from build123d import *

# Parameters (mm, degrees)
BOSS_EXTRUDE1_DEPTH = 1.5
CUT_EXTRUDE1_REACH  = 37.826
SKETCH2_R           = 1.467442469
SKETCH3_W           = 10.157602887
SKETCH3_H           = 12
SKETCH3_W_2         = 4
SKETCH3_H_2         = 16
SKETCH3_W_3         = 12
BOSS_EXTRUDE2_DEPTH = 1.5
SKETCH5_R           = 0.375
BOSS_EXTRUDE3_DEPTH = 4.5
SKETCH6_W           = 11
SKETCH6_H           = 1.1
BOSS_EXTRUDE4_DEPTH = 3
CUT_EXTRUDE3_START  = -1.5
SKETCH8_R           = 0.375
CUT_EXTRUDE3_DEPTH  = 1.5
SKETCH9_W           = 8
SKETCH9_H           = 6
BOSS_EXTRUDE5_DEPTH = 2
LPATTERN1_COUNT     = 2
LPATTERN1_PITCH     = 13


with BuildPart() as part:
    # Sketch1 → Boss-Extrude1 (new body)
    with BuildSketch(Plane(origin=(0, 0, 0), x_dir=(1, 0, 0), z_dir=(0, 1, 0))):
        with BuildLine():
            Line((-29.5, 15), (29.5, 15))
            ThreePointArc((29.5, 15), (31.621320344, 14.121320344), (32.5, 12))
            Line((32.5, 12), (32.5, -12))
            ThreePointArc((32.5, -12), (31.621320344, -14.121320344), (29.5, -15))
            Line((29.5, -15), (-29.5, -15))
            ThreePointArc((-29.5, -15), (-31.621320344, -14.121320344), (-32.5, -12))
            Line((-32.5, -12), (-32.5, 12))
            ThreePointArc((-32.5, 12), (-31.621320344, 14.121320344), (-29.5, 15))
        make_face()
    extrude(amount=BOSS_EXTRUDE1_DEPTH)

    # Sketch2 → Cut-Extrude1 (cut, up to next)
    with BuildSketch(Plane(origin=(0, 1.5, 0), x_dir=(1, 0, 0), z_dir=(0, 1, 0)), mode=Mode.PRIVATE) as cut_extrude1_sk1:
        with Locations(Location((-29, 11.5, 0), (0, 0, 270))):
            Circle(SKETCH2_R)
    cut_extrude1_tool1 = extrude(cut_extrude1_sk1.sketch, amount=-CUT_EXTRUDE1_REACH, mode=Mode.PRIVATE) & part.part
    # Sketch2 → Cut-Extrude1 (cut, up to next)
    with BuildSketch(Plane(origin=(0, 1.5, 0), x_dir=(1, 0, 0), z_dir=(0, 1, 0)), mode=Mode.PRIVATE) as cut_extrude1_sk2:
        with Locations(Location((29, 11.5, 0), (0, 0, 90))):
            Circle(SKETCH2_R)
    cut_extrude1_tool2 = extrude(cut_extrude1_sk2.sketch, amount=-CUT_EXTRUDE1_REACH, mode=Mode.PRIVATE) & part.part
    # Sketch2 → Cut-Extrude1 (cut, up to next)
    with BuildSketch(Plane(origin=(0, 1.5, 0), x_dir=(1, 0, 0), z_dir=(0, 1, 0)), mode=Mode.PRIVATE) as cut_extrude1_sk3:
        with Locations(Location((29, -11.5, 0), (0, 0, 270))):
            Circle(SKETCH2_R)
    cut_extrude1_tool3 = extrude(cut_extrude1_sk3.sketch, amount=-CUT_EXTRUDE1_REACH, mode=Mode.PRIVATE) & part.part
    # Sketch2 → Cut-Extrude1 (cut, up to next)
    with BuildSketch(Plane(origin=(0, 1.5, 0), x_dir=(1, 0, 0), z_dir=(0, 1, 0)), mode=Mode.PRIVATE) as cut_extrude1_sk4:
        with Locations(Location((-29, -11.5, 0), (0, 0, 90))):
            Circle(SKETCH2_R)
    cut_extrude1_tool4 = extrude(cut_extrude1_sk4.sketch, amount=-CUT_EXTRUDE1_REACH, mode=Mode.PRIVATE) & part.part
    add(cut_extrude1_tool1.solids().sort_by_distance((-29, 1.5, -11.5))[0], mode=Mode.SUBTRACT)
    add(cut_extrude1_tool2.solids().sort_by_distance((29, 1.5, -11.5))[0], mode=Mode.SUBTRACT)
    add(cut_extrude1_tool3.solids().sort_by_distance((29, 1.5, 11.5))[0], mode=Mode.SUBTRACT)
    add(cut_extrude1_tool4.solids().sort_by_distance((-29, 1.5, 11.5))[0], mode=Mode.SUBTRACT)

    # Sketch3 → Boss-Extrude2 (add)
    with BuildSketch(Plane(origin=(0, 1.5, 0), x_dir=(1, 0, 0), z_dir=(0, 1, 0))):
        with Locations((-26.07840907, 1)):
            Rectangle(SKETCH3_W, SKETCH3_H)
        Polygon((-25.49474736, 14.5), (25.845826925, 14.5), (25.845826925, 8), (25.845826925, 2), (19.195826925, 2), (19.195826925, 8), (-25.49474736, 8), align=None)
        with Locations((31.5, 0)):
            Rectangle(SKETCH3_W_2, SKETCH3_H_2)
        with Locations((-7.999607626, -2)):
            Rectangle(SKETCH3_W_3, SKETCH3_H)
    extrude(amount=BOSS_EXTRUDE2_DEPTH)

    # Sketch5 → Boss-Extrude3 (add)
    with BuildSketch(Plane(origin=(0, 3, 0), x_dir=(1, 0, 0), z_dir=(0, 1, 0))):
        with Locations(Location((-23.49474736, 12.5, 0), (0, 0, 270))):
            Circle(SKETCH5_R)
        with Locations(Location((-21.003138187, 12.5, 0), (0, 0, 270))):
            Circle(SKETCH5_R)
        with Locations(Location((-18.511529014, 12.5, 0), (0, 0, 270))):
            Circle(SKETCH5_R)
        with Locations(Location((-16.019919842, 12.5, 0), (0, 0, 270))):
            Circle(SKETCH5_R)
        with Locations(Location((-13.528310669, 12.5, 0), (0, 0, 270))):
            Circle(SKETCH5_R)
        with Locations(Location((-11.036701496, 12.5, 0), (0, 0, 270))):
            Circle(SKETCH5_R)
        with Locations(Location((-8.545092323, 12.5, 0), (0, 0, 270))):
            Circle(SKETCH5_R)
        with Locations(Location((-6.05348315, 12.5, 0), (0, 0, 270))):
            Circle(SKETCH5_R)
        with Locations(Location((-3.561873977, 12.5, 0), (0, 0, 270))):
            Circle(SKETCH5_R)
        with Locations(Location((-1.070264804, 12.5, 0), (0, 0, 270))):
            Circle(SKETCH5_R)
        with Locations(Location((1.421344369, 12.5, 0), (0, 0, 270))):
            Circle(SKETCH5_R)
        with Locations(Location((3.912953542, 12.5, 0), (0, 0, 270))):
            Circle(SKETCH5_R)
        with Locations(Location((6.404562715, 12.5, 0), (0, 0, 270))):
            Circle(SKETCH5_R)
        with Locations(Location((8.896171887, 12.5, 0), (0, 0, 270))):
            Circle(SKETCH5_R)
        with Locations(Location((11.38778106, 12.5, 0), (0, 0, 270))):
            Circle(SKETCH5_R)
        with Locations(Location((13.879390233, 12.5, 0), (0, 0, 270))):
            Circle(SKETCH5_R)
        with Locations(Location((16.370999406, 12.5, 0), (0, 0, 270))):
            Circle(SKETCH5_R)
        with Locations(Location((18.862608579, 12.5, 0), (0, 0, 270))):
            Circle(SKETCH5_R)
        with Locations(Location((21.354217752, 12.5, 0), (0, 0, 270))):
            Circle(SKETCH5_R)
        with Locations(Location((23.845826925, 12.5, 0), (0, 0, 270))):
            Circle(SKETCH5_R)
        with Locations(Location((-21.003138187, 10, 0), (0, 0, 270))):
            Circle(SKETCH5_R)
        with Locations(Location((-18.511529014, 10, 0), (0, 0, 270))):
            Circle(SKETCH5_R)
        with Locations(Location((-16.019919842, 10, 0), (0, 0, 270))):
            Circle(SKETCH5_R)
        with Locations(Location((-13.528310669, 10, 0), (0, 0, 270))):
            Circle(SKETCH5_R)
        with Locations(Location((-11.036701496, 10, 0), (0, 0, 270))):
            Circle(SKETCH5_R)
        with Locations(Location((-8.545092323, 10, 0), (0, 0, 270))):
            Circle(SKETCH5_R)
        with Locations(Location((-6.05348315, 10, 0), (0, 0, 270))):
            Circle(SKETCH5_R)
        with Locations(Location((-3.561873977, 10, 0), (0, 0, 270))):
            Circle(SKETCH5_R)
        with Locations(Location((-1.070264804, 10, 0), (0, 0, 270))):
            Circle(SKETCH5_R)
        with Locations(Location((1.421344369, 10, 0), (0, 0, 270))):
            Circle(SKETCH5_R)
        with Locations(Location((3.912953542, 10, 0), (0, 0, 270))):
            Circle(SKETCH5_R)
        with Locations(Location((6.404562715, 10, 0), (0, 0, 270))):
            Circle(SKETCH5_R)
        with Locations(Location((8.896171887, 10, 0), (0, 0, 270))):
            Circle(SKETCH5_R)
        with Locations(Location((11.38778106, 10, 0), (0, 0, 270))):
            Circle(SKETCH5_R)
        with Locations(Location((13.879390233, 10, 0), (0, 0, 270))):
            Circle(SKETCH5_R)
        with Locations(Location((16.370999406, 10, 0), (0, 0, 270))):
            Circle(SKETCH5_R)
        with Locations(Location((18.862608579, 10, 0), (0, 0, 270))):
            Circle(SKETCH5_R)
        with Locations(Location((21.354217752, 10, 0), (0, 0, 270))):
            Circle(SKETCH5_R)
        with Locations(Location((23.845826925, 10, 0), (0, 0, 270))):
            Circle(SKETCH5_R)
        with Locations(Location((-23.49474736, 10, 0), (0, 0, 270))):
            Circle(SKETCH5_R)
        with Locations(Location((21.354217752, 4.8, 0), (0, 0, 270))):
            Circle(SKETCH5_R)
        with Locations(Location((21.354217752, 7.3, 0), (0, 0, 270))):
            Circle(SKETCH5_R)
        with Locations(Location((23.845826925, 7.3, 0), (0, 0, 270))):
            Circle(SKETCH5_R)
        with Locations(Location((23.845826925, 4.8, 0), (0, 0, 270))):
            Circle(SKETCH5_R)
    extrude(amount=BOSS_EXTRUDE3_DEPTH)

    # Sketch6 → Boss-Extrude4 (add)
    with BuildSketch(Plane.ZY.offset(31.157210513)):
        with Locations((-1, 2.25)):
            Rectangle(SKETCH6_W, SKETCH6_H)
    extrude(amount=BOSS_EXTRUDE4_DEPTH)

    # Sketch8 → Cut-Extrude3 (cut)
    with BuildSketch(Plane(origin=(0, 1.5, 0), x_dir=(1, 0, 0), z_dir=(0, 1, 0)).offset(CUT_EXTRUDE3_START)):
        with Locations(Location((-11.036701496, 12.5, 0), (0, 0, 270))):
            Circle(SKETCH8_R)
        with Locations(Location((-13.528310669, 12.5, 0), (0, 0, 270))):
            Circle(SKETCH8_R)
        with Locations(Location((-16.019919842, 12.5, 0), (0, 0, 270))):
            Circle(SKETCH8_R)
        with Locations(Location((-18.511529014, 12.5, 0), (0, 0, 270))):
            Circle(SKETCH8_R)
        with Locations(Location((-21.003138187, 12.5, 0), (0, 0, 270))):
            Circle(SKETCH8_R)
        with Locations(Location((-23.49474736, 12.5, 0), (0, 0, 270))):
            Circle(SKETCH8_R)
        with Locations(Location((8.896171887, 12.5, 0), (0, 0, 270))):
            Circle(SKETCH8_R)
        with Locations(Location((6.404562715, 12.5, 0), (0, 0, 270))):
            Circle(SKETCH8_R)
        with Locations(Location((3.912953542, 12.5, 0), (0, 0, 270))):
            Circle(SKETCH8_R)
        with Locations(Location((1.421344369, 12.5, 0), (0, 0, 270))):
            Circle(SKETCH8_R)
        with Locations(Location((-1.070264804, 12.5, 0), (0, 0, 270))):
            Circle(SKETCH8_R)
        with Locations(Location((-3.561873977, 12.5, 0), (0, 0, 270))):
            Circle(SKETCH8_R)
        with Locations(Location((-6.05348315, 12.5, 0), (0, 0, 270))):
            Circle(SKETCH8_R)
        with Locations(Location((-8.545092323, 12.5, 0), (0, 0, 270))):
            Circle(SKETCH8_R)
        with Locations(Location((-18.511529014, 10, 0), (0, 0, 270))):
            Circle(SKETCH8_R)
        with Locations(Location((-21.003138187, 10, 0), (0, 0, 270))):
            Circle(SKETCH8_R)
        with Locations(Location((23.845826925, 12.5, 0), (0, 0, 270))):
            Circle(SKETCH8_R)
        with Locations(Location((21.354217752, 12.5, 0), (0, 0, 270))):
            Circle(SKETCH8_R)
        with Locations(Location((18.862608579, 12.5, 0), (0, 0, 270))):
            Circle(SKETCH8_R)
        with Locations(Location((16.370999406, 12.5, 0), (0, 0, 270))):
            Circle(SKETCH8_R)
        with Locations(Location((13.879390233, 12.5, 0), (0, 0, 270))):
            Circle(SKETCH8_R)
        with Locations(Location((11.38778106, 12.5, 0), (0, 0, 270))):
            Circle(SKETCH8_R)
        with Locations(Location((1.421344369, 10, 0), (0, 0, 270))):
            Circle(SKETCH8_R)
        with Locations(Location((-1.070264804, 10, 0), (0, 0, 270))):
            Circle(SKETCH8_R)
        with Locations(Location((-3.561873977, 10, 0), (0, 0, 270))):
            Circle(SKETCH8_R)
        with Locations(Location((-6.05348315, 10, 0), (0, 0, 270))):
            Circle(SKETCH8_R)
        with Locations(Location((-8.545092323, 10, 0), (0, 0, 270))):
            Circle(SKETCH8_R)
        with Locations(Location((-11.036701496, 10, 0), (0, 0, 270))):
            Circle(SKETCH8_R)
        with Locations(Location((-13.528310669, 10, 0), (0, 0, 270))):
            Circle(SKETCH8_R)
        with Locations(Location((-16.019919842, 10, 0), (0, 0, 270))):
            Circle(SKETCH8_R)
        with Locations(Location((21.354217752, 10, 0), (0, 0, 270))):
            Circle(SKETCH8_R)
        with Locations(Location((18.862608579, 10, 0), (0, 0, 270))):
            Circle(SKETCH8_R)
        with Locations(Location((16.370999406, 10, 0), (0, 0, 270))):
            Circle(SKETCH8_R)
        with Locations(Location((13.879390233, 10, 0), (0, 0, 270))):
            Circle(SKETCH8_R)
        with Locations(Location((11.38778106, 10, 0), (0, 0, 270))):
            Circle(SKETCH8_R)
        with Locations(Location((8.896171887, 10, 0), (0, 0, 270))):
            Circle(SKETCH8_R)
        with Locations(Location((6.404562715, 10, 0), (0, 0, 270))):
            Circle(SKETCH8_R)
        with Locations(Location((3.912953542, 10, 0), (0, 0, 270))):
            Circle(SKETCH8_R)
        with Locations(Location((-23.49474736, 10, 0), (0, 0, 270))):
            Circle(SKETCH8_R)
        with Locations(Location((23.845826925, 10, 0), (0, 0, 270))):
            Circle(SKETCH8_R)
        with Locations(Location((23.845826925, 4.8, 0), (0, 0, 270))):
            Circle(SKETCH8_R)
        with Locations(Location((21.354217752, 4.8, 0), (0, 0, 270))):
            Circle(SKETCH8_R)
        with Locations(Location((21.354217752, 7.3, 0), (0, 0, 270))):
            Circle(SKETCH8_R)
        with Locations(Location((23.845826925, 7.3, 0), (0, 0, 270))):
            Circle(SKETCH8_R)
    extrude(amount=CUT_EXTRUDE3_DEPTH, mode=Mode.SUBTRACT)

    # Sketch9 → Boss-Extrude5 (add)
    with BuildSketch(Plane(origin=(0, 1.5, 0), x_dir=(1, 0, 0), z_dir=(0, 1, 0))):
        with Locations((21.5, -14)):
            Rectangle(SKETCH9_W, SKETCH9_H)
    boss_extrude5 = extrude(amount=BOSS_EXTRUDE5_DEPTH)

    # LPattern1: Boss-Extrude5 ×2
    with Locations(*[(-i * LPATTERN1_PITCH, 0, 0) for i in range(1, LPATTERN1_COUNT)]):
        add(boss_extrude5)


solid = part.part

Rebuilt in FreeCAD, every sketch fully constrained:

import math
import FreeCAD as App
import Part
import Sketcher


def add_polygon(sketch, points):
    """Adds a closed chain of lines whose ends are joined by coincident constraints."""
    first, n = sketch.GeometryCount, len(points)
    for a, b in zip(points, points[1:] + points[:1]):
        sketch.addGeometry(Part.LineSegment(App.Vector(*a, 0), App.Vector(*b, 0)), False)
    for i in range(n):
        sketch.addConstraint(Sketcher.Constraint("Coincident", first + i, 2, first + (i + 1) % n, 1))

doc = App.newDocument("Part")
body = doc.addObject("PartDesign::Body", "Body")

sketch1 = body.newObject("Sketcher::SketchObject", "Sketch")
sketch1.AttachmentSupport = (doc.getObject("XZ_Plane"), [""])
sketch1.MapMode = "FlatFace"
sketch1.addGeometry([
    Part.LineSegment(App.Vector(29.5, -15, 0), App.Vector(-29.5, -15, 0)),
    Part.ArcOfCircle(Part.Circle(App.Vector(-29.5, -12, 0), App.Vector(0, 0, 1), 3), math.radians(180), math.radians(270)),
    Part.LineSegment(App.Vector(-32.5, -12, 0), App.Vector(-32.5, 12, 0)),
    Part.ArcOfCircle(Part.Circle(App.Vector(-29.5, 12, 0), App.Vector(0, 0, 1), 3), math.radians(90), math.radians(180)),
    Part.LineSegment(App.Vector(-29.5, 15, 0), App.Vector(29.5, 15, 0)),
    Part.ArcOfCircle(Part.Circle(App.Vector(29.5, 12, 0), App.Vector(0, 0, 1), 3), math.radians(0), math.radians(90)),
    Part.LineSegment(App.Vector(32.5, 12, 0), App.Vector(32.5, -12, 0)),
    Part.ArcOfCircle(Part.Circle(App.Vector(29.5, -12, 0), App.Vector(0, 0, 1), 3), math.radians(-90), math.radians(0)),
], False)
sketch1.addConstraint([
    Sketcher.Constraint("Tangent", 0, 2, 1, 2),
    Sketcher.Constraint("Tangent", 1, 1, 2, 1),
    Sketcher.Constraint("Tangent", 2, 2, 3, 2),
    Sketcher.Constraint("Tangent", 3, 1, 4, 1),
    Sketcher.Constraint("Tangent", 4, 2, 5, 2),
    Sketcher.Constraint("Tangent", 5, 1, 6, 1),
    Sketcher.Constraint("Tangent", 6, 2, 7, 2),
    Sketcher.Constraint("Tangent", 7, 1, 0, 1),
    Sketcher.Constraint("Horizontal", 0),
    Sketcher.Constraint("Vertical", 2),
    Sketcher.Constraint("Horizontal", 4),
    Sketcher.Constraint("Vertical", 6),
    Sketcher.Constraint("Equal", 1, 3),
    Sketcher.Constraint("Equal", 3, 5),
    Sketcher.Constraint("Equal", 5, 7),
    Sketcher.Constraint("Symmetric", 1, 3, 5, 3, -1, 1),
    Sketcher.Constraint("Radius", 1, 3.0),
    Sketcher.Constraint("DistanceX", 0, 2, 0, 1, 59.0),
    Sketcher.Constraint("DistanceY", 2, 1, 2, 2, 24.0),
])
pad1 = body.newObject("PartDesign::Pad", "Pad")
pad1.Profile = sketch1
pad1.Length = 1.5
pad1.Reversed = True

sketch2 = body.newObject("Sketcher::SketchObject", "Sketch001")
sketch2.AttachmentSupport = (doc.getObject("XZ_Plane"), [""])
sketch2.MapMode = "FlatFace"
sketch2.AttachmentOffset = App.Placement(App.Vector(0, 0, -1.5), App.Rotation())
sketch2.addGeometry(Part.Circle(App.Vector(-29, -11.5, 0), App.Vector(0, 0, 1), 1.467442), False)
sketch2.addConstraint([
    Sketcher.Constraint("DistanceX", 0, 3, -1, 1, 29.0),
    Sketcher.Constraint("DistanceY", 0, 3, -1, 1, 11.5),
    Sketcher.Constraint("Diameter", 0, 2.934885),
])
pocket1 = body.newObject("PartDesign::Pocket", "Pocket")
pocket1.Profile = sketch2
pocket1.Type = "UpToFirst"
pocket1.Reversed = True

sketch3 = body.newObject("Sketcher::SketchObject", "Sketch002")
sketch3.AttachmentSupport = (doc.getObject("XZ_Plane"), [""])
sketch3.MapMode = "FlatFace"
sketch3.AttachmentOffset = App.Placement(App.Vector(0, 0, -1.5), App.Rotation())
sketch3.addGeometry(Part.Circle(App.Vector(29, -11.5, 0), App.Vector(0, 0, 1), 1.467442), False)
sketch3.addConstraint([
    Sketcher.Constraint("DistanceX", -1, 1, 0, 3, 29.0),
    Sketcher.Constraint("DistanceY", 0, 3, -1, 1, 11.5),
    Sketcher.Constraint("Diameter", 0, 2.934885),
])
pocket2 = body.newObject("PartDesign::Pocket", "Pocket001")
pocket2.Profile = sketch3
pocket2.Type = "UpToFirst"
pocket2.Reversed = True

sketch4 = body.newObject("Sketcher::SketchObject", "Sketch003")
sketch4.AttachmentSupport = (doc.getObject("XZ_Plane"), [""])
sketch4.MapMode = "FlatFace"
sketch4.AttachmentOffset = App.Placement(App.Vector(0, 0, -1.5), App.Rotation())
sketch4.addGeometry(Part.Circle(App.Vector(29, 11.5, 0), App.Vector(0, 0, 1), 1.467442), False)
sketch4.addConstraint([
    Sketcher.Constraint("DistanceX", -1, 1, 0, 3, 29.0),
    Sketcher.Constraint("DistanceY", -1, 1, 0, 3, 11.5),
    Sketcher.Constraint("Diameter", 0, 2.934885),
])
pocket3 = body.newObject("PartDesign::Pocket", "Pocket002")
pocket3.Profile = sketch4
pocket3.Type = "UpToFirst"
pocket3.Reversed = True

sketch5 = body.newObject("Sketcher::SketchObject", "Sketch004")
sketch5.AttachmentSupport = (doc.getObject("XZ_Plane"), [""])
sketch5.MapMode = "FlatFace"
sketch5.AttachmentOffset = App.Placement(App.Vector(0, 0, -1.5), App.Rotation())
sketch5.addGeometry(Part.Circle(App.Vector(-29, 11.5, 0), App.Vector(0, 0, 1), 1.467442), False)
sketch5.addConstraint([
    Sketcher.Constraint("DistanceX", 0, 3, -1, 1, 29.0),
    Sketcher.Constraint("DistanceY", -1, 1, 0, 3, 11.5),
    Sketcher.Constraint("Diameter", 0, 2.934885),
])
pocket4 = body.newObject("PartDesign::Pocket", "Pocket003")
pocket4.Profile = sketch5
pocket4.Type = "UpToFirst"
pocket4.Reversed = True

sketch6 = body.newObject("Sketcher::SketchObject", "Sketch005")
sketch6.AttachmentSupport = (doc.getObject("XZ_Plane"), [""])
sketch6.MapMode = "FlatFace"
sketch6.AttachmentOffset = App.Placement(App.Vector(0, 0, -1.5), App.Rotation())
add_polygon(sketch6, [(-31.157211, -7), (-31.157211, 5), (-20.999608, 5), (-20.999608, -7)])
add_polygon(sketch6, [(25.845827, -14.5), (-25.494747, -14.5), (-25.494747, -8), (19.195827, -8), (19.195827, -2), (25.845827, -2)])
add_polygon(sketch6, [(29.5, -8), (29.5, 8), (33.5, 8), (33.5, -8)])
add_polygon(sketch6, [(-13.999608, -4), (-13.999608, 8), (-1.999608, 8), (-1.999608, -4)])
sketch6.addConstraint([
    Sketcher.Constraint("Vertical", 0),
    Sketcher.Constraint("Horizontal", 1),
    Sketcher.Constraint("Vertical", 2),
    Sketcher.Constraint("Horizontal", 3),
    Sketcher.Constraint("Horizontal", 4),
    Sketcher.Constraint("Vertical", 5),
    Sketcher.Constraint("Horizontal", 6),
    Sketcher.Constraint("Vertical", 7),
    Sketcher.Constraint("Horizontal", 8),
    Sketcher.Constraint("Vertical", 9),
    Sketcher.Constraint("Vertical", 10),
    Sketcher.Constraint("Horizontal", 11),
    Sketcher.Constraint("Vertical", 12),
    Sketcher.Constraint("Horizontal", 13),
    Sketcher.Constraint("Vertical", 14),
    Sketcher.Constraint("Horizontal", 15),
    Sketcher.Constraint("Vertical", 16),
    Sketcher.Constraint("Horizontal", 17),
    Sketcher.Constraint("Horizontal", 6, 2, 12, 2),
    Sketcher.Constraint("Horizontal", 11, 2, 14, 2),
    Sketcher.Constraint("Equal", 17, 0),
    Sketcher.Constraint("Equal", 2, 14),
    Sketcher.Constraint("DistanceX", 11, 1, 11, 2, 4.0),
    Sketcher.Constraint("DistanceX", 15, 1, 15, 2, 12.0),
    Sketcher.Constraint("DistanceY", 7, 1, 7, 2, 6.0),
    Sketcher.Constraint("DistanceY", 10, 1, 10, 2, 16.0),
    Sketcher.Constraint("DistanceY", 5, 1, 5, 2, 6.5),
    Sketcher.Constraint("DistanceY", -1, 1, 0, 2, 5.0),
    Sketcher.Constraint("DistanceY", 5, 2, -1, 1, 8.0),
    Sketcher.Constraint("DistanceX", 1, 2, 14, 2, 7.0),
    Sketcher.Constraint("DistanceX", 8, 1, 8, 2, 6.65),
    Sketcher.Constraint("DistanceX", -1, 1, 10, 2, 29.5),
    Sketcher.Constraint("DistanceX", 1, 1, 1, 2, 10.157603),
    Sketcher.Constraint("DistanceX", 4, 2, 4, 1, 51.340574),
    Sketcher.Constraint("DistanceX", 0, 2, -1, 1, 31.157211),
    Sketcher.Constraint("DistanceX", 4, 2, 2, 2, 4.49514),
])
pad2 = body.newObject("PartDesign::Pad", "Pad001")
pad2.Profile = sketch6
pad2.Length = 1.5
pad2.Reversed = True

sketch7 = body.newObject("Sketcher::SketchObject", "Sketch006")
sketch7.AttachmentSupport = (doc.getObject("XZ_Plane"), [""])
sketch7.MapMode = "FlatFace"
sketch7.AttachmentOffset = App.Placement(App.Vector(0, 0, -3), App.Rotation())
sketch7.addGeometry([
    Part.Circle(App.Vector(-23.494747, -12.5, 0), App.Vector(0, 0, 1), 0.375),
    Part.Circle(App.Vector(-21.003138, -12.5, 0), App.Vector(0, 0, 1), 0.375),
    Part.Circle(App.Vector(-18.511529, -12.5, 0), App.Vector(0, 0, 1), 0.375),
    Part.Circle(App.Vector(-16.01992, -12.5, 0), App.Vector(0, 0, 1), 0.375),
    Part.Circle(App.Vector(-13.528311, -12.5, 0), App.Vector(0, 0, 1), 0.375),
    Part.Circle(App.Vector(-11.036701, -12.5, 0), App.Vector(0, 0, 1), 0.375),
    Part.Circle(App.Vector(-8.545092, -12.5, 0), App.Vector(0, 0, 1), 0.375),
    Part.Circle(App.Vector(-6.053483, -12.5, 0), App.Vector(0, 0, 1), 0.375),
    Part.Circle(App.Vector(-3.561874, -12.5, 0), App.Vector(0, 0, 1), 0.375),
    Part.Circle(App.Vector(-1.070265, -12.5, 0), App.Vector(0, 0, 1), 0.375),
    Part.Circle(App.Vector(1.421344, -12.5, 0), App.Vector(0, 0, 1), 0.375),
    Part.Circle(App.Vector(3.912954, -12.5, 0), App.Vector(0, 0, 1), 0.375),
    Part.Circle(App.Vector(6.404563, -12.5, 0), App.Vector(0, 0, 1), 0.375),
    Part.Circle(App.Vector(8.896172, -12.5, 0), App.Vector(0, 0, 1), 0.375),
    Part.Circle(App.Vector(11.387781, -12.5, 0), App.Vector(0, 0, 1), 0.375),
    Part.Circle(App.Vector(13.87939, -12.5, 0), App.Vector(0, 0, 1), 0.375),
    Part.Circle(App.Vector(16.370999, -12.5, 0), App.Vector(0, 0, 1), 0.375),
    Part.Circle(App.Vector(18.862609, -12.5, 0), App.Vector(0, 0, 1), 0.375),
    Part.Circle(App.Vector(21.354218, -12.5, 0), App.Vector(0, 0, 1), 0.375),
    Part.Circle(App.Vector(23.845827, -12.5, 0), App.Vector(0, 0, 1), 0.375),
    Part.Circle(App.Vector(-21.003138, -10, 0), App.Vector(0, 0, 1), 0.375),
    Part.Circle(App.Vector(-18.511529, -10, 0), App.Vector(0, 0, 1), 0.375),
    Part.Circle(App.Vector(-16.01992, -10, 0), App.Vector(0, 0, 1), 0.375),
    Part.Circle(App.Vector(-13.528311, -10, 0), App.Vector(0, 0, 1), 0.375),
    Part.Circle(App.Vector(-11.036701, -10, 0), App.Vector(0, 0, 1), 0.375),
    Part.Circle(App.Vector(-8.545092, -10, 0), App.Vector(0, 0, 1), 0.375),
    Part.Circle(App.Vector(-6.053483, -10, 0), App.Vector(0, 0, 1), 0.375),
    Part.Circle(App.Vector(-3.561874, -10, 0), App.Vector(0, 0, 1), 0.375),
    Part.Circle(App.Vector(-1.070265, -10, 0), App.Vector(0, 0, 1), 0.375),
    Part.Circle(App.Vector(1.421344, -10, 0), App.Vector(0, 0, 1), 0.375),
    Part.Circle(App.Vector(3.912954, -10, 0), App.Vector(0, 0, 1), 0.375),
    Part.Circle(App.Vector(6.404563, -10, 0), App.Vector(0, 0, 1), 0.375),
    Part.Circle(App.Vector(8.896172, -10, 0), App.Vector(0, 0, 1), 0.375),
    Part.Circle(App.Vector(11.387781, -10, 0), App.Vector(0, 0, 1), 0.375),
    Part.Circle(App.Vector(13.87939, -10, 0), App.Vector(0, 0, 1), 0.375),
    Part.Circle(App.Vector(16.370999, -10, 0), App.Vector(0, 0, 1), 0.375),
    Part.Circle(App.Vector(18.862609, -10, 0), App.Vector(0, 0, 1), 0.375),
    Part.Circle(App.Vector(21.354218, -10, 0), App.Vector(0, 0, 1), 0.375),
    Part.Circle(App.Vector(23.845827, -10, 0), App.Vector(0, 0, 1), 0.375),
    Part.Circle(App.Vector(-23.494747, -10, 0), App.Vector(0, 0, 1), 0.375),
    Part.Circle(App.Vector(21.354218, -4.8, 0), App.Vector(0, 0, 1), 0.375),
    Part.Circle(App.Vector(21.354218, -7.3, 0), App.Vector(0, 0, 1), 0.375),
    Part.Circle(App.Vector(23.845827, -7.3, 0), App.Vector(0, 0, 1), 0.375),
    Part.Circle(App.Vector(23.845827, -4.8, 0), App.Vector(0, 0, 1), 0.375),
], False)
sketch7.addConstraint([
    Sketcher.Constraint("Equal", 0, 1),
    Sketcher.Constraint("Equal", 1, 2),
    Sketcher.Constraint("Equal", 2, 3),
    Sketcher.Constraint("Equal", 3, 4),
    Sketcher.Constraint("Equal", 4, 5),
    Sketcher.Constraint("Equal", 5, 6),
    Sketcher.Constraint("Equal", 6, 7),
    Sketcher.Constraint("Equal", 7, 8),
    Sketcher.Constraint("Equal", 8, 9),
    Sketcher.Constraint("Equal", 9, 10),
    Sketcher.Constraint("Equal", 10, 11),
    Sketcher.Constraint("Equal", 11, 12),
    Sketcher.Constraint("Equal", 12, 13),
    Sketcher.Constraint("Equal", 13, 14),
    Sketcher.Constraint("Equal", 14, 15),
    Sketcher.Constraint("Equal", 15, 16),
    Sketcher.Constraint("Equal", 16, 17),
    Sketcher.Constraint("Equal", 17, 18),
    Sketcher.Constraint("Equal", 18, 19),
    Sketcher.Constraint("Equal", 19, 20),
    Sketcher.Constraint("Equal", 20, 21),
    Sketcher.Constraint("Equal", 21, 22),
    Sketcher.Constraint("Equal", 22, 23),
    Sketcher.Constraint("Equal", 23, 24),
    Sketcher.Constraint("Equal", 24, 25),
    Sketcher.Constraint("Equal", 25, 26),
    Sketcher.Constraint("Equal", 26, 27),
    Sketcher.Constraint("Equal", 27, 28),
    Sketcher.Constraint("Equal", 28, 29),
    Sketcher.Constraint("Equal", 29, 30),
    Sketcher.Constraint("Equal", 30, 31),
    Sketcher.Constraint("Equal", 31, 32),
    Sketcher.Constraint("Equal", 32, 33),
    Sketcher.Constraint("Equal", 33, 34),
    Sketcher.Constraint("Equal", 34, 35),
    Sketcher.Constraint("Equal", 35, 36),
    Sketcher.Constraint("Equal", 36, 37),
    Sketcher.Constraint("Equal", 37, 38),
    Sketcher.Constraint("Equal", 38, 39),
    Sketcher.Constraint("Equal", 39, 40),
    Sketcher.Constraint("Equal", 40, 41),
    Sketcher.Constraint("Equal", 41, 42),
    Sketcher.Constraint("Equal", 42, 43),
    Sketcher.Constraint("Horizontal", 0, 3, 1, 3),
    Sketcher.Constraint("Horizontal", 1, 3, 2, 3),
    Sketcher.Constraint("Horizontal", 2, 3, 3, 3),
    Sketcher.Constraint("Horizontal", 3, 3, 4, 3),
    Sketcher.Constraint("Horizontal", 4, 3, 5, 3),
    Sketcher.Constraint("Horizontal", 5, 3, 6, 3),
    Sketcher.Constraint("Horizontal", 6, 3, 7, 3),
    Sketcher.Constraint("Horizontal", 7, 3, 8, 3),
    Sketcher.Constraint("Horizontal", 8, 3, 9, 3),
    Sketcher.Constraint("Horizontal", 9, 3, 10, 3),
    Sketcher.Constraint("Horizontal", 10, 3, 11, 3),
    Sketcher.Constraint("Horizontal", 11, 3, 12, 3),
    Sketcher.Constraint("Horizontal", 12, 3, 13, 3),
    Sketcher.Constraint("Horizontal", 13, 3, 14, 3),
    Sketcher.Constraint("Horizontal", 14, 3, 15, 3),
    Sketcher.Constraint("Horizontal", 15, 3, 16, 3),
    Sketcher.Constraint("Horizontal", 16, 3, 17, 3),
    Sketcher.Constraint("Horizontal", 17, 3, 18, 3),
    Sketcher.Constraint("Horizontal", 18, 3, 19, 3),
    Sketcher.Constraint("Horizontal", 20, 3, 21, 3),
    Sketcher.Constraint("Horizontal", 21, 3, 22, 3),
    Sketcher.Constraint("Horizontal", 22, 3, 23, 3),
    Sketcher.Constraint("Horizontal", 23, 3, 24, 3),
    Sketcher.Constraint("Horizontal", 24, 3, 25, 3),
    Sketcher.Constraint("Horizontal", 25, 3, 26, 3),
    Sketcher.Constraint("Horizontal", 26, 3, 27, 3),
    Sketcher.Constraint("Horizontal", 27, 3, 28, 3),
    Sketcher.Constraint("Horizontal", 28, 3, 29, 3),
    Sketcher.Constraint("Horizontal", 29, 3, 30, 3),
    Sketcher.Constraint("Horizontal", 30, 3, 31, 3),
    Sketcher.Constraint("Horizontal", 31, 3, 32, 3),
    Sketcher.Constraint("Horizontal", 32, 3, 33, 3),
    Sketcher.Constraint("Horizontal", 33, 3, 34, 3),
    Sketcher.Constraint("Horizontal", 34, 3, 35, 3),
    Sketcher.Constraint("Horizontal", 35, 3, 36, 3),
    Sketcher.Constraint("Horizontal", 36, 3, 37, 3),
    Sketcher.Constraint("Horizontal", 37, 3, 38, 3),
    Sketcher.Constraint("Horizontal", 38, 3, 39, 3),
    Sketcher.Constraint("Horizontal", 41, 3, 42, 3),
    Sketcher.Constraint("Horizontal", 40, 3, 43, 3),
    Sketcher.Constraint("Vertical", 1, 3, 20, 3),
    Sketcher.Constraint("Vertical", 2, 3, 21, 3),
    Sketcher.Constraint("Vertical", 3, 3, 22, 3),
    Sketcher.Constraint("Vertical", 4, 3, 23, 3),
    Sketcher.Constraint("Vertical", 5, 3, 24, 3),
    Sketcher.Constraint("Vertical", 6, 3, 25, 3),
    Sketcher.Constraint("Vertical", 7, 3, 26, 3),
    Sketcher.Constraint("Vertical", 8, 3, 27, 3),
    Sketcher.Constraint("Vertical", 9, 3, 28, 3),
    Sketcher.Constraint("Vertical", 10, 3, 29, 3),
    Sketcher.Constraint("Vertical", 11, 3, 30, 3),
    Sketcher.Constraint("Vertical", 12, 3, 31, 3),
    Sketcher.Constraint("Vertical", 13, 3, 32, 3),
    Sketcher.Constraint("Vertical", 14, 3, 33, 3),
    Sketcher.Constraint("Vertical", 15, 3, 34, 3),
    Sketcher.Constraint("Vertical", 16, 3, 35, 3),
    Sketcher.Constraint("Vertical", 17, 3, 36, 3),
    Sketcher.Constraint("Vertical", 18, 3, 37, 3),
    Sketcher.Constraint("Vertical", 19, 3, 38, 3),
    Sketcher.Constraint("Vertical", 0, 3, 39, 3),
    Sketcher.Constraint("Vertical", 37, 3, 40, 3),
    Sketcher.Constraint("Vertical", 40, 3, 41, 3),
    Sketcher.Constraint("Vertical", 38, 3, 42, 3),
    Sketcher.Constraint("Vertical", 42, 3, 43, 3),
    Sketcher.Constraint("Diameter", 0, 0.75),
    Sketcher.Constraint("DistanceY", 20, 3, -1, 1, 10.0),
    Sketcher.Constraint("DistanceY", 0, 3, -1, 1, 12.5),
    Sketcher.Constraint("DistanceY", 40, 3, -1, 1, 4.8),
    Sketcher.Constraint("DistanceY", 41, 3, -1, 1, 7.3),
    Sketcher.Constraint("DistanceX", -1, 1, 16, 3, 16.370999),
    Sketcher.Constraint("DistanceX", 5, 3, -1, 1, 11.036701),
    Sketcher.Constraint("DistanceX", 1, 3, -1, 1, 21.003138),
    Sketcher.Constraint("DistanceX", 2, 3, -1, 1, 18.511529),
    Sketcher.Constraint("DistanceX", 3, 3, -1, 1, 16.01992),
    Sketcher.Constraint("DistanceX", 4, 3, -1, 1, 13.528311),
    Sketcher.Constraint("DistanceX", -1, 1, 13, 3, 8.896172),
    Sketcher.Constraint("DistanceX", -1, 1, 14, 3, 11.387781),
    Sketcher.Constraint("DistanceX", -1, 1, 15, 3, 13.87939),
    Sketcher.Constraint("DistanceX", -1, 1, 17, 3, 18.862609),
    Sketcher.Constraint("DistanceX", 0, 3, 1, 3, 2.491609),
    Sketcher.Constraint("DistanceX", 5, 3, 6, 3, 2.491609),
    Sketcher.Constraint("DistanceX", 6, 3, 7, 3, 2.491609),
    Sketcher.Constraint("DistanceX", 7, 3, 8, 3, 2.491609),
    Sketcher.Constraint("DistanceX", 8, 3, 9, 3, 2.491609),
    Sketcher.Constraint("DistanceX", 9, 3, 10, 3, 2.491609),
    Sketcher.Constraint("DistanceX", 10, 3, 11, 3, 2.491609),
    Sketcher.Constraint("DistanceX", 11, 3, 12, 3, 2.491609),
    Sketcher.Constraint("DistanceX", 17, 3, 18, 3, 2.491609),
    Sketcher.Constraint("DistanceX", 18, 3, 19, 3, 2.491609),
])
pad3 = body.newObject("PartDesign::Pad", "Pad002")
pad3.Profile = sketch7
pad3.Length = 4.5
pad3.Reversed = True

sketch8 = body.newObject("Sketcher::SketchObject", "Sketch007")
sketch8.AttachmentSupport = (doc.getObject("YZ_Plane"), [""])
sketch8.MapMode = "FlatFace"
sketch8.AttachmentOffset = App.Placement(App.Vector(0, 0, -31.157211), App.Rotation())
add_polygon(sketch8, [(2.8, -6.5), (1.7, -6.5), (1.7, 4.5), (2.8, 4.5)])
sketch8.addConstraint([
    Sketcher.Constraint("Horizontal", 0),
    Sketcher.Constraint("Vertical", 1),
    Sketcher.Constraint("Horizontal", 2),
    Sketcher.Constraint("Vertical", 3),
    Sketcher.Constraint("DistanceY", 1, 1, 1, 2, 11.0),
    Sketcher.Constraint("DistanceX", 0, 2, 0, 1, 1.1),
    Sketcher.Constraint("DistanceX", -1, 1, 0, 2, 1.7),
    Sketcher.Constraint("DistanceY", 0, 2, -1, 1, 6.5),
])
pad4 = body.newObject("PartDesign::Pad", "Pad003")
pad4.Profile = sketch8
pad4.Length = 3
pad4.Reversed = True

sketch9 = body.newObject("Sketcher::SketchObject", "Sketch008")
sketch9.AttachmentSupport = (doc.getObject("XZ_Plane"), [""])
sketch9.MapMode = "FlatFace"
sketch9.addGeometry([
    Part.Circle(App.Vector(-11.036701, -12.5, 0), App.Vector(0, 0, 1), 0.375),
    Part.Circle(App.Vector(-13.528311, -12.5, 0), App.Vector(0, 0, 1), 0.375),
    Part.Circle(App.Vector(-16.01992, -12.5, 0), App.Vector(0, 0, 1), 0.375),
    Part.Circle(App.Vector(-18.511529, -12.5, 0), App.Vector(0, 0, 1), 0.375),
    Part.Circle(App.Vector(-21.003138, -12.5, 0), App.Vector(0, 0, 1), 0.375),
    Part.Circle(App.Vector(-23.494747, -12.5, 0), App.Vector(0, 0, 1), 0.375),
    Part.Circle(App.Vector(8.896172, -12.5, 0), App.Vector(0, 0, 1), 0.375),
    Part.Circle(App.Vector(6.404563, -12.5, 0), App.Vector(0, 0, 1), 0.375),
    Part.Circle(App.Vector(3.912954, -12.5, 0), App.Vector(0, 0, 1), 0.375),
    Part.Circle(App.Vector(1.421344, -12.5, 0), App.Vector(0, 0, 1), 0.375),
    Part.Circle(App.Vector(-1.070265, -12.5, 0), App.Vector(0, 0, 1), 0.375),
    Part.Circle(App.Vector(-3.561874, -12.5, 0), App.Vector(0, 0, 1), 0.375),
    Part.Circle(App.Vector(-6.053483, -12.5, 0), App.Vector(0, 0, 1), 0.375),
    Part.Circle(App.Vector(-8.545092, -12.5, 0), App.Vector(0, 0, 1), 0.375),
    Part.Circle(App.Vector(-18.511529, -10, 0), App.Vector(0, 0, 1), 0.375),
    Part.Circle(App.Vector(-21.003138, -10, 0), App.Vector(0, 0, 1), 0.375),
    Part.Circle(App.Vector(23.845827, -12.5, 0), App.Vector(0, 0, 1), 0.375),
    Part.Circle(App.Vector(21.354218, -12.5, 0), App.Vector(0, 0, 1), 0.375),
    Part.Circle(App.Vector(18.862609, -12.5, 0), App.Vector(0, 0, 1), 0.375),
    Part.Circle(App.Vector(16.370999, -12.5, 0), App.Vector(0, 0, 1), 0.375),
    Part.Circle(App.Vector(13.87939, -12.5, 0), App.Vector(0, 0, 1), 0.375),
    Part.Circle(App.Vector(11.387781, -12.5, 0), App.Vector(0, 0, 1), 0.375),
    Part.Circle(App.Vector(1.421344, -10, 0), App.Vector(0, 0, 1), 0.375),
    Part.Circle(App.Vector(-1.070265, -10, 0), App.Vector(0, 0, 1), 0.375),
    Part.Circle(App.Vector(-3.561874, -10, 0), App.Vector(0, 0, 1), 0.375),
    Part.Circle(App.Vector(-6.053483, -10, 0), App.Vector(0, 0, 1), 0.375),
    Part.Circle(App.Vector(-8.545092, -10, 0), App.Vector(0, 0, 1), 0.375),
    Part.Circle(App.Vector(-11.036701, -10, 0), App.Vector(0, 0, 1), 0.375),
    Part.Circle(App.Vector(-13.528311, -10, 0), App.Vector(0, 0, 1), 0.375),
    Part.Circle(App.Vector(-16.01992, -10, 0), App.Vector(0, 0, 1), 0.375),
    Part.Circle(App.Vector(21.354218, -10, 0), App.Vector(0, 0, 1), 0.375),
    Part.Circle(App.Vector(18.862609, -10, 0), App.Vector(0, 0, 1), 0.375),
    Part.Circle(App.Vector(16.370999, -10, 0), App.Vector(0, 0, 1), 0.375),
    Part.Circle(App.Vector(13.87939, -10, 0), App.Vector(0, 0, 1), 0.375),
    Part.Circle(App.Vector(11.387781, -10, 0), App.Vector(0, 0, 1), 0.375),
    Part.Circle(App.Vector(8.896172, -10, 0), App.Vector(0, 0, 1), 0.375),
    Part.Circle(App.Vector(6.404563, -10, 0), App.Vector(0, 0, 1), 0.375),
    Part.Circle(App.Vector(3.912954, -10, 0), App.Vector(0, 0, 1), 0.375),
    Part.Circle(App.Vector(-23.494747, -10, 0), App.Vector(0, 0, 1), 0.375),
    Part.Circle(App.Vector(23.845827, -10, 0), App.Vector(0, 0, 1), 0.375),
    Part.Circle(App.Vector(23.845827, -4.8, 0), App.Vector(0, 0, 1), 0.375),
    Part.Circle(App.Vector(21.354218, -4.8, 0), App.Vector(0, 0, 1), 0.375),
    Part.Circle(App.Vector(21.354218, -7.3, 0), App.Vector(0, 0, 1), 0.375),
    Part.Circle(App.Vector(23.845827, -7.3, 0), App.Vector(0, 0, 1), 0.375),
], False)
sketch9.addConstraint([
    Sketcher.Constraint("Equal", 0, 1),
    Sketcher.Constraint("Equal", 1, 2),
    Sketcher.Constraint("Equal", 2, 3),
    Sketcher.Constraint("Equal", 3, 4),
    Sketcher.Constraint("Equal", 4, 5),
    Sketcher.Constraint("Equal", 5, 6),
    Sketcher.Constraint("Equal", 6, 7),
    Sketcher.Constraint("Equal", 7, 8),
    Sketcher.Constraint("Equal", 8, 9),
    Sketcher.Constraint("Equal", 9, 10),
    Sketcher.Constraint("Equal", 10, 11),
    Sketcher.Constraint("Equal", 11, 12),
    Sketcher.Constraint("Equal", 12, 13),
    Sketcher.Constraint("Equal", 13, 14),
    Sketcher.Constraint("Equal", 14, 15),
    Sketcher.Constraint("Equal", 15, 16),
    Sketcher.Constraint("Equal", 16, 17),
    Sketcher.Constraint("Equal", 17, 18),
    Sketcher.Constraint("Equal", 18, 19),
    Sketcher.Constraint("Equal", 19, 20),
    Sketcher.Constraint("Equal", 20, 21),
    Sketcher.Constraint("Equal", 21, 22),
    Sketcher.Constraint("Equal", 22, 23),
    Sketcher.Constraint("Equal", 23, 24),
    Sketcher.Constraint("Equal", 24, 25),
    Sketcher.Constraint("Equal", 25, 26),
    Sketcher.Constraint("Equal", 26, 27),
    Sketcher.Constraint("Equal", 27, 28),
    Sketcher.Constraint("Equal", 28, 29),
    Sketcher.Constraint("Equal", 29, 30),
    Sketcher.Constraint("Equal", 30, 31),
    Sketcher.Constraint("Equal", 31, 32),
    Sketcher.Constraint("Equal", 32, 33),
    Sketcher.Constraint("Equal", 33, 34),
    Sketcher.Constraint("Equal", 34, 35),
    Sketcher.Constraint("Equal", 35, 36),
    Sketcher.Constraint("Equal", 36, 37),
    Sketcher.Constraint("Equal", 37, 38),
    Sketcher.Constraint("Equal", 38, 39),
    Sketcher.Constraint("Equal", 39, 40),
    Sketcher.Constraint("Equal", 40, 41),
    Sketcher.Constraint("Equal", 41, 42),
    Sketcher.Constraint("Equal", 42, 43),
    Sketcher.Constraint("Horizontal", 0, 3, 1, 3),
    Sketcher.Constraint("Horizontal", 1, 3, 2, 3),
    Sketcher.Constraint("Horizontal", 2, 3, 3, 3),
    Sketcher.Constraint("Horizontal", 3, 3, 4, 3),
    Sketcher.Constraint("Horizontal", 4, 3, 5, 3),
    Sketcher.Constraint("Horizontal", 5, 3, 6, 3),
    Sketcher.Constraint("Horizontal", 6, 3, 7, 3),
    Sketcher.Constraint("Horizontal", 7, 3, 8, 3),
    Sketcher.Constraint("Horizontal", 8, 3, 9, 3),
    Sketcher.Constraint("Horizontal", 9, 3, 10, 3),
    Sketcher.Constraint("Horizontal", 10, 3, 11, 3),
    Sketcher.Constraint("Horizontal", 11, 3, 12, 3),
    Sketcher.Constraint("Horizontal", 12, 3, 13, 3),
    Sketcher.Constraint("Horizontal", 14, 3, 15, 3),
    Sketcher.Constraint("Horizontal", 13, 3, 16, 3),
    Sketcher.Constraint("Horizontal", 16, 3, 17, 3),
    Sketcher.Constraint("Horizontal", 17, 3, 18, 3),
    Sketcher.Constraint("Horizontal", 18, 3, 19, 3),
    Sketcher.Constraint("Horizontal", 19, 3, 20, 3),
    Sketcher.Constraint("Horizontal", 20, 3, 21, 3),
    Sketcher.Constraint("Horizontal", 15, 3, 22, 3),
    Sketcher.Constraint("Horizontal", 22, 3, 23, 3),
    Sketcher.Constraint("Horizontal", 23, 3, 24, 3),
    Sketcher.Constraint("Horizontal", 24, 3, 25, 3),
    Sketcher.Constraint("Horizontal", 25, 3, 26, 3),
    Sketcher.Constraint("Horizontal", 26, 3, 27, 3),
    Sketcher.Constraint("Horizontal", 27, 3, 28, 3),
    Sketcher.Constraint("Horizontal", 28, 3, 29, 3),
    Sketcher.Constraint("Horizontal", 29, 3, 30, 3),
    Sketcher.Constraint("Horizontal", 30, 3, 31, 3),
    Sketcher.Constraint("Horizontal", 31, 3, 32, 3),
    Sketcher.Constraint("Horizontal", 32, 3, 33, 3),
    Sketcher.Constraint("Horizontal", 33, 3, 34, 3),
    Sketcher.Constraint("Horizontal", 34, 3, 35, 3),
    Sketcher.Constraint("Horizontal", 35, 3, 36, 3),
    Sketcher.Constraint("Horizontal", 36, 3, 37, 3),
    Sketcher.Constraint("Horizontal", 37, 3, 38, 3),
    Sketcher.Constraint("Horizontal", 38, 3, 39, 3),
    Sketcher.Constraint("Horizontal", 40, 3, 41, 3),
    Sketcher.Constraint("Horizontal", 42, 3, 43, 3),
    Sketcher.Constraint("Vertical", 3, 3, 14, 3),
    Sketcher.Constraint("Vertical", 4, 3, 15, 3),
    Sketcher.Constraint("Vertical", 9, 3, 22, 3),
    Sketcher.Constraint("Vertical", 10, 3, 23, 3),
    Sketcher.Constraint("Vertical", 11, 3, 24, 3),
    Sketcher.Constraint("Vertical", 12, 3, 25, 3),
    Sketcher.Constraint("Vertical", 13, 3, 26, 3),
    Sketcher.Constraint("Vertical", 0, 3, 27, 3),
    Sketcher.Constraint("Vertical", 1, 3, 28, 3),
    Sketcher.Constraint("Vertical", 2, 3, 29, 3),
    Sketcher.Constraint("Vertical", 17, 3, 30, 3),
    Sketcher.Constraint("Vertical", 18, 3, 31, 3),
    Sketcher.Constraint("Vertical", 19, 3, 32, 3),
    Sketcher.Constraint("Vertical", 20, 3, 33, 3),
    Sketcher.Constraint("Vertical", 21, 3, 34, 3),
    Sketcher.Constraint("Vertical", 6, 3, 35, 3),
    Sketcher.Constraint("Vertical", 7, 3, 36, 3),
    Sketcher.Constraint("Vertical", 8, 3, 37, 3),
    Sketcher.Constraint("Vertical", 5, 3, 38, 3),
    Sketcher.Constraint("Vertical", 16, 3, 39, 3),
    Sketcher.Constraint("Vertical", 39, 3, 40, 3),
    Sketcher.Constraint("Vertical", 30, 3, 41, 3),
    Sketcher.Constraint("Vertical", 41, 3, 42, 3),
    Sketcher.Constraint("Vertical", 40, 3, 43, 3),
    Sketcher.Constraint("Diameter", 0, 0.75),
    Sketcher.Constraint("DistanceY", 14, 3, -1, 1, 10.0),
    Sketcher.Constraint("DistanceY", 0, 3, -1, 1, 12.5),
    Sketcher.Constraint("DistanceY", 40, 3, -1, 1, 4.8),
    Sketcher.Constraint("DistanceY", 42, 3, -1, 1, 7.3),
    Sketcher.Constraint("DistanceX", -1, 1, 19, 3, 16.370999),
    Sketcher.Constraint("DistanceX", 0, 3, -1, 1, 11.036701),
    Sketcher.Constraint("DistanceX", 3, 3, 6, 3, 27.407701),
    Sketcher.Constraint("DistanceX", 1, 3, -1, 1, 13.528311),
    Sketcher.Constraint("DistanceX", 2, 3, -1, 1, 16.01992),
    Sketcher.Constraint("DistanceX", 3, 3, -1, 1, 18.511529),
    Sketcher.Constraint("DistanceX", 4, 3, -1, 1, 21.003138),
    Sketcher.Constraint("DistanceX", -1, 1, 18, 3, 18.862609),
    Sketcher.Constraint("DistanceX", -1, 1, 20, 3, 13.87939),
    Sketcher.Constraint("DistanceX", -1, 1, 21, 3, 11.387781),
    Sketcher.Constraint("DistanceX", 5, 3, 4, 3, 2.491609),
    Sketcher.Constraint("DistanceX", 7, 3, 6, 3, 2.491609),
    Sketcher.Constraint("DistanceX", 8, 3, 7, 3, 2.491609),
    Sketcher.Constraint("DistanceX", 9, 3, 8, 3, 2.491609),
    Sketcher.Constraint("DistanceX", 10, 3, 9, 3, 2.491609),
    Sketcher.Constraint("DistanceX", 11, 3, 10, 3, 2.491609),
    Sketcher.Constraint("DistanceX", 12, 3, 11, 3, 2.491609),
    Sketcher.Constraint("DistanceX", 0, 3, 13, 3, 2.491609),
    Sketcher.Constraint("DistanceX", 10, 3, 16, 3, 24.916092),
    Sketcher.Constraint("DistanceX", 17, 3, 16, 3, 2.491609),
])
pocket5 = body.newObject("PartDesign::Pocket", "Pocket004")
pocket5.Profile = sketch9
pocket5.Length = 1.5

sketch10 = body.newObject("Sketcher::SketchObject", "Sketch009")
sketch10.AttachmentSupport = (doc.getObject("XZ_Plane"), [""])
sketch10.MapMode = "FlatFace"
sketch10.AttachmentOffset = App.Placement(App.Vector(0, 0, -1.5), App.Rotation())
add_polygon(sketch10, [(17.5, 11), (17.5, 17), (25.5, 17), (25.5, 11)])
sketch10.addConstraint([
    Sketcher.Constraint("Vertical", 0),
    Sketcher.Constraint("Horizontal", 1),
    Sketcher.Constraint("Vertical", 2),
    Sketcher.Constraint("Horizontal", 3),
    Sketcher.Constraint("DistanceX", 1, 1, 1, 2, 8.0),
    Sketcher.Constraint("DistanceY", 0, 1, 0, 2, 6.0),
    Sketcher.Constraint("DistanceY", -1, 1, 0, 2, 17.0),
    Sketcher.Constraint("DistanceX", -1, 1, 0, 2, 17.5),
])
pad5 = body.newObject("PartDesign::Pad", "Pad004")
pad5.Profile = sketch10
pad5.Length = 2
pad5.Reversed = True
doc.recompute()

linearpattern = body.newObject("PartDesign::LinearPattern", "LinearPattern")
linearpattern.Originals = [pad5]
linearpattern.Direction = (doc.getObject("X_Axis"), [""])
linearpattern.Mode = "offset"
linearpattern.Offset = 13
linearpattern.Occurrences = 2
linearpattern.Reversed = True
body.Tip = linearpattern

doc.recompute()
